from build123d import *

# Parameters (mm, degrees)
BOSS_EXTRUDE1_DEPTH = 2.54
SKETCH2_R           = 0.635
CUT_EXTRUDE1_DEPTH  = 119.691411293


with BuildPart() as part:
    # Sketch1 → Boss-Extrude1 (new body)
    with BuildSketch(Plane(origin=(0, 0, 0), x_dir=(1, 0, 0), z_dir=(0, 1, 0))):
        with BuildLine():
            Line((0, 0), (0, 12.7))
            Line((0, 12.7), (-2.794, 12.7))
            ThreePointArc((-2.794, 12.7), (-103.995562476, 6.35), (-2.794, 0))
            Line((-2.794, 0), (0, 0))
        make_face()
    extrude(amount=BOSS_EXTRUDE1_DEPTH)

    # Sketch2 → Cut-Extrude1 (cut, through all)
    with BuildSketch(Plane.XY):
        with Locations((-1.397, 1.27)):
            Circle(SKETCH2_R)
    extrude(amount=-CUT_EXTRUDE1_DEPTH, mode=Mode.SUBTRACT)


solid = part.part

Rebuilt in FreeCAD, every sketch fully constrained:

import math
import FreeCAD as App
import Part
import Sketcher
Q = App.Units.Quantity

doc = App.newDocument("Part")
body = doc.addObject("PartDesign::Body", "Body")

# Sketch on XZ plane
sketch1 = body.newObject("Sketcher::SketchObject", "Sketch")
sketch1.AttachmentSupport = (doc.getObject("XZ_Plane"), [""])
sketch1.MapMode = "FlatFace"
sketch1.addGeometry([
    Part.LineSegment(App.Vector(0, 0, 0), App.Vector(0, -12.7, 0)),
    Part.LineSegment(App.Vector(0, -12.7, 0), App.Vector(-2.794, -12.7, 0)),
    Part.ArcOfCircle(Part.Circle(App.Vector(-53.195562, -6.35, 0), App.Vector(0, 0, 1), 50.8), math.radians(7.180756), math.radians(352.819244)),
    Part.LineSegment(App.Vector(-2.794, 0, 0), App.Vector(0, 0, 0)),
], False)
sketch1.addConstraint([
    Sketcher.Constraint("Coincident", 0, 2, 1, 1),
    Sketcher.Constraint("Coincident", 1, 2, 2, 2),
    Sketcher.Constraint("Coincident", 2, 1, 3, 1),
    Sketcher.Constraint("Coincident", 3, 2, 0, 1),
    Sketcher.Constraint("Vertical", 0),
    Sketcher.Constraint("Horizontal", 1),
    Sketcher.Constraint("Horizontal", 3),
    Sketcher.Constraint("Coincident", 3, 2, -1, 1),
    Sketcher.Constraint("Vertical", 1, 2, 2, 1),
    Sketcher.Constraint("Radius", 2, Q("2 in")),
    Sketcher.Constraint("DistanceY", 0, 2, 0, 1, Q("0.5 in")),
    Sketcher.Constraint("DistanceX", 1, 2, 1, 1, Q("0.11 in")),
])
pad1 = body.newObject("PartDesign::Pad", "Pad")
pad1.Profile = sketch1
pad1.Length = Q("0.1 in")
pad1.Reversed = True

# Sketch on XY plane
sketch2 = body.newObject("Sketcher::SketchObject", "Sketch001")
sketch2.AttachmentSupport = (doc.getObject("XY_Plane"), [""])
sketch2.MapMode = "FlatFace"
sketch2.addGeometry(Part.Circle(App.Vector(-1.397, 1.27, 0), App.Vector(0, 0, 1), 0.635), False)
sketch2.addConstraint([
    Sketcher.Constraint("Diameter", 0, Q("0.05 in")),
    Sketcher.Constraint("DistanceY", -1, 1, 0, 3, Q("0.05 in")),
    Sketcher.Constraint("DistanceX", 0, 3, -1, 1, Q("0.055 in")),
])
pocket1 = body.newObject("PartDesign::Pocket", "Pocket")
pocket1.Profile = sketch2
pocket1.Type = "ThroughAll"

doc.recompute()
